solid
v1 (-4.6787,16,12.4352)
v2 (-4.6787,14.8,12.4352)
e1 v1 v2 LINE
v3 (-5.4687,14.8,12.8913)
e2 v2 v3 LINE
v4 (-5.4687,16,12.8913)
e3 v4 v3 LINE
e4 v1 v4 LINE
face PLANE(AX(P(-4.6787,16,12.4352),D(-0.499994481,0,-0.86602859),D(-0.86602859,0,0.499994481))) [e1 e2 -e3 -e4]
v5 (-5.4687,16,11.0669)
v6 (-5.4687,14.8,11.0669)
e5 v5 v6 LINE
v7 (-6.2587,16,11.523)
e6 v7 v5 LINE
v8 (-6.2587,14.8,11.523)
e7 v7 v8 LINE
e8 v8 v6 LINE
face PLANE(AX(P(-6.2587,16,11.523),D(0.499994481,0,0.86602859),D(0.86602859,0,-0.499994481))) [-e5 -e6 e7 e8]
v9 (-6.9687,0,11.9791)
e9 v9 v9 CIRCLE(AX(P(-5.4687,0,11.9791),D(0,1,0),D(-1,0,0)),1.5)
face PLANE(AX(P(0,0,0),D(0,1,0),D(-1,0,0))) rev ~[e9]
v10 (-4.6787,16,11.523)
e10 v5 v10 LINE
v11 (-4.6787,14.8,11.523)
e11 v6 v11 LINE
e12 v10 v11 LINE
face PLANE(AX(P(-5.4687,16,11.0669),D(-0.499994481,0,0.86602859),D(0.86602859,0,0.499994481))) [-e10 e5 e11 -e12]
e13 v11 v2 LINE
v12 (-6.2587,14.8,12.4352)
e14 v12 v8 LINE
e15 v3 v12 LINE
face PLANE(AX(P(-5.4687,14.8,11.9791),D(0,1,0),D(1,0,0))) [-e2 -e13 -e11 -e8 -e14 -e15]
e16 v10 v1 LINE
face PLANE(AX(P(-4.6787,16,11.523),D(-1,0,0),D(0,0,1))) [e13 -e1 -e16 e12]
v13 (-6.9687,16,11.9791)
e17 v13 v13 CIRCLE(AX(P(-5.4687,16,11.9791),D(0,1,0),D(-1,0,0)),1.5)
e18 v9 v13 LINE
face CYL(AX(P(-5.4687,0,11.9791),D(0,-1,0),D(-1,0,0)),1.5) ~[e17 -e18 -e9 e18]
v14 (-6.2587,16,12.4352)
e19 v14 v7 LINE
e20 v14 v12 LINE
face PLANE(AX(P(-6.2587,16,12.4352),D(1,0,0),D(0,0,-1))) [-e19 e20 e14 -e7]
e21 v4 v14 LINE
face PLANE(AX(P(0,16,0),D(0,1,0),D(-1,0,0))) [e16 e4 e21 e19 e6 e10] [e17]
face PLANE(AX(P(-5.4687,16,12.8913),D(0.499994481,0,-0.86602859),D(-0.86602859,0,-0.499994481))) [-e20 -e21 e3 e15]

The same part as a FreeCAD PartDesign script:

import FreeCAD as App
import Part
import Sketcher
from FreeCAD import Vector
Q = App.Units.Quantity

doc = App.newDocument("Part")
body = doc.addObject("PartDesign::Body", "Body")

# Sketch on XZ plane
sketch1 = body.newObject("Sketcher::SketchObject", "Sketch")
sketch1.AttachmentSupport = (doc.getObject("XZ_Plane"), [""])
sketch1.MapMode = "FlatFace"
sketch1.addGeometry(Part.Circle(Vector(-5.4687, 11.9791, 0), Vector(0, 0, 1), 1.5), False)
sketch1.addConstraint(Sketcher.Constraint("Diameter", 0, Q("3 mm")))
sketch1.addConstraint(Sketcher.Constraint("DistanceY", -1, 1, 0, 3, Q("11.979 mm")))
sketch1.addConstraint(Sketcher.Constraint("DistanceX", 0, 3, -1, 1, Q("5.4687 mm")))
pad1 = body.newObject("PartDesign::Pad", "Pad")
pad1.Profile = sketch1
pad1.Length = 16
pad1.Reversed = True

# Sketch on XZ plane
sketch2 = body.newObject("Sketcher::SketchObject", "Sketch001")
sketch2.AttachmentSupport = (doc.getObject("XZ_Plane"), [""])
sketch2.MapMode = "FlatFace"
sketch2.AttachmentOffset = App.Placement(Vector(0, 0, -16), App.Rotation())
sketch2.addGeometry(Part.LineSegment(Vector(-4.6787, 11.523, 0), Vector(-5.4687, 11.0669, 0)), False)
sketch2.addGeometry(Part.LineSegment(Vector(-5.4687, 11.0669, 0), Vector(-6.2587, 11.523, 0)), False)
sketch2.addGeometry(Part.LineSegment(Vector(-6.2587, 11.523, 0), Vector(-6.2587, 12.4352, 0)), False)
sketch2.addGeometry(Part.LineSegment(Vector(-6.2587, 12.4352, 0), Vector(-5.4687, 12.8913, 0)), False)
sketch2.addGeometry(Part.LineSegment(Vector(-5.4687, 12.8913, 0), Vector(-4.6787, 12.4352, 0)), False)
sketch2.addGeometry(Part.LineSegment(Vector(-4.6787, 12.4352, 0), Vector(-4.6787, 11.523, 0)), False)
sketch2.addConstraint(Sketcher.Constraint("Coincident", 0, 2, 1, 1))
sketch2.addConstraint(Sketcher.Constraint("Coincident", 1, 2, 2, 1))
sketch2.addConstraint(Sketcher.Constraint("Coincident", 2, 2, 3, 1))
sketch2.addConstraint(Sketcher.Constraint("Coincident", 3, 2, 4, 1))
sketch2.addConstraint(Sketcher.Constraint("Coincident", 4, 2, 5, 1))
sketch2.addConstraint(Sketcher.Constraint("Coincident", 5, 2, 0, 1))
sketch2.addConstraint(Sketcher.Constraint("Vertical", 2))
sketch2.addConstraint(Sketcher.Constraint("Vertical", 5))
sketch2.addConstraint(Sketcher.Constraint("Parallel", 0, 3))
sketch2.addConstraint(Sketcher.Constraint("Parallel", 1, 4))
sketch2.addConstraint(Sketcher.Constraint("Horizontal", 2, 2, 4, 2))
sketch2.addConstraint(Sketcher.Constraint("Horizontal", 1, 2, 5, 2))
sketch2.addConstraint(Sketcher.Constraint("Vertical", 0, 2, 3, 2))
sketch2.addConstraint(Sketcher.Constraint("Angle", 0, Q("-150.0004 deg")))
sketch2.addConstraint(Sketcher.Constraint("DistanceX", 2, 2, 4, 2, Q("1.58 mm")))
sketch2.addConstraint(Sketcher.Constraint("DistanceY", 2, 1, 2, 2, Q("0.9122 mm")))
sketch2.addConstraint(Sketcher.Constraint("DistanceY", -1, 1, 0, 2, Q("11.067 mm")))
sketch2.addConstraint(Sketcher.Constraint("DistanceX", 0, 2, -1, 1, Q("5.4687 mm")))
pocket1 = body.newObject("PartDesign::Pocket", "Pocket")
pocket1.Profile = sketch2
pocket1.Length = 1.2
pocket1.Reversed = True

doc.recompute()
